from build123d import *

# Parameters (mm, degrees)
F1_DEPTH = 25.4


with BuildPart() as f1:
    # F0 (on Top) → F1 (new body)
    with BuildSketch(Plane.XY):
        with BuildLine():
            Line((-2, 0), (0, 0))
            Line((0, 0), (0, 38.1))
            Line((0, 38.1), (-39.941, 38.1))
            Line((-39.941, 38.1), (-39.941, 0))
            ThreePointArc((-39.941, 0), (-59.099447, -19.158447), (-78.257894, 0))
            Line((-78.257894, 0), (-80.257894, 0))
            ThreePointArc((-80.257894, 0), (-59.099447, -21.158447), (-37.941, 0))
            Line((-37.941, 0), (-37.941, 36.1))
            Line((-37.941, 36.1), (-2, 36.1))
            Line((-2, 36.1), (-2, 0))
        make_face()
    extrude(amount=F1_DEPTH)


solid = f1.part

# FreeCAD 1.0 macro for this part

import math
import FreeCAD as App
import Part
import Sketcher
Q = App.Units.Quantity

doc = App.newDocument("Part")
params = doc.addObject("Spreadsheet::Sheet", "Params")
for row, (alias, value) in enumerate([
    ("sketch1_height", "1.5 in"),
    ("sketch1_width", "1.415 in"),
    ("pad1_length", "1 in"),
], start=1):
    params.set(f"A{row}", alias)
    params.set(f"B{row}", "=" + value)
    params.setAlias(f"B{row}", alias)

body = doc.addObject("PartDesign::Body", "Body")

# Sketch on XY plane
sketch1 = body.newObject("Sketcher::SketchObject", "Sketch")
sketch1.AttachmentSupport = (doc.getObject("XY_Plane"), [""])
sketch1.MapMode = "FlatFace"
sketch1.addGeometry(Part.LineSegment(App.Vector(-2, 0, 0), App.Vector(0, 0, 0)), False)
sketch1.addGeometry(Part.LineSegment(App.Vector(0, 0, 0), App.Vector(0, 38.1, 0)), False)
sketch1.addGeometry(Part.LineSegment(App.Vector(0, 38.1, 0), App.Vector(-39.9, 38.1, 0)), False)
sketch1.addGeometry(Part.LineSegment(App.Vector(-39.9, 38.1, 0), App.Vector(-39.9, 0, 0)), False)
sketch1.addGeometry(Part.ArcOfCircle(Part.Circle(App.Vector(-59.1, 0, 0), App.Vector(0, 0, 1), 19.2), math.radians(180), math.radians(360)), False)
sketch1.addGeometry(Part.LineSegment(App.Vector(-78.3, 0, 0), App.Vector(-80.3, 0, 0)), False)
sketch1.addGeometry(Part.ArcOfCircle(Part.Circle(App.Vector(-59.1, 0, 0), App.Vector(0, 0, 1), 21.2), math.radians(180), math.radians(360)), False)
sketch1.addGeometry(Part.LineSegment(App.Vector(-37.9, 0, 0), App.Vector(-37.9, 36.1, 0)), False)
sketch1.addGeometry(Part.LineSegment(App.Vector(-37.9, 36.1, 0), App.Vector(-2, 36.1, 0)), False)
sketch1.addGeometry(Part.LineSegment(App.Vector(-2, 36.1, 0), App.Vector(-2, 0, 0)), False)
sketch1.addConstraint(Sketcher.Constraint("Coincident", 0, 2, 1, 1))
sketch1.addConstraint(Sketcher.Constraint("Coincident", 1, 2, 2, 1))
sketch1.addConstraint(Sketcher.Constraint("Coincident", 2, 2, 3, 1))
sketch1.addConstraint(Sketcher.Constraint("Tangent", 3, 2, 4, 2))
sketch1.addConstraint(Sketcher.Constraint("Coincident", 4, 1, 5, 1))
sketch1.addConstraint(Sketcher.Constraint("Coincident", 5, 2, 6, 1))
sketch1.addConstraint(Sketcher.Constraint("Tangent", 6, 2, 7, 1))
sketch1.addConstraint(Sketcher.Constraint("Coincident", 7, 2, 8, 1))
sketch1.addConstraint(Sketcher.Constraint("Coincident", 8, 2, 9, 1))
sketch1.addConstraint(Sketcher.Constraint("Coincident", 9, 2, 0, 1))
sketch1.addConstraint(Sketcher.Constraint("Horizontal", 0))
sketch1.addConstraint(Sketcher.Constraint("Vertical", 1))
sketch1.addConstraint(Sketcher.Constraint("Horizontal", 2))
sketch1.addConstraint(Sketcher.Constraint("Vertical", 3))
sketch1.addConstraint(Sketcher.Constraint("Horizontal", 5))
sketch1.addConstraint(Sketcher.Constraint("Vertical", 7))
sketch1.addConstraint(Sketcher.Constraint("Horizontal", 8))
sketch1.addConstraint(Sketcher.Constraint("Vertical", 9))
sketch1.addConstraint(Sketcher.Constraint("Coincident", 0, 2, -1, 1))
sketch1.addConstraint(Sketcher.Constraint("Coincident", 6, 3, 4, 3))
sketch1.addConstraint(Sketcher.Constraint("PointOnObject", 4, 3, -1))
sketch1.addConstraint(Sketcher.Constraint("PointOnObject", 4, 1, -1))
sketch1.addConstraint(Sketcher.Constraint("Equal", 0, 5))
sketch1.addConstraint(Sketcher.Constraint("DistanceY", 1, 1, 1, 2, Q("1.5 in")))
sketch1.addConstraint(Sketcher.Constraint("DistanceX", 8, 1, 8, 2, Q("1.415 in")))
sketch1.addConstraint(Sketcher.Constraint("DistanceX", 0, 1, 0, 2, Q("2 mm")))
sketch1.addConstraint(Sketcher.Constraint("DistanceY", 7, 1, 7, 2, Q("36.1 mm")))
sketch1.addConstraint(Sketcher.Constraint("Radius", 4, Q("19.158447 mm")))
sketch1.setExpression("Constraints[23]", "Params.sketch1_height")
sketch1.setExpression("Constraints[24]", "Params.sketch1_width")
pad1 = body.newObject("PartDesign::Pad", "Pad")
pad1.Profile = sketch1
pad1.setExpression("Length", "Params.pad1_length")

doc.recompute()
